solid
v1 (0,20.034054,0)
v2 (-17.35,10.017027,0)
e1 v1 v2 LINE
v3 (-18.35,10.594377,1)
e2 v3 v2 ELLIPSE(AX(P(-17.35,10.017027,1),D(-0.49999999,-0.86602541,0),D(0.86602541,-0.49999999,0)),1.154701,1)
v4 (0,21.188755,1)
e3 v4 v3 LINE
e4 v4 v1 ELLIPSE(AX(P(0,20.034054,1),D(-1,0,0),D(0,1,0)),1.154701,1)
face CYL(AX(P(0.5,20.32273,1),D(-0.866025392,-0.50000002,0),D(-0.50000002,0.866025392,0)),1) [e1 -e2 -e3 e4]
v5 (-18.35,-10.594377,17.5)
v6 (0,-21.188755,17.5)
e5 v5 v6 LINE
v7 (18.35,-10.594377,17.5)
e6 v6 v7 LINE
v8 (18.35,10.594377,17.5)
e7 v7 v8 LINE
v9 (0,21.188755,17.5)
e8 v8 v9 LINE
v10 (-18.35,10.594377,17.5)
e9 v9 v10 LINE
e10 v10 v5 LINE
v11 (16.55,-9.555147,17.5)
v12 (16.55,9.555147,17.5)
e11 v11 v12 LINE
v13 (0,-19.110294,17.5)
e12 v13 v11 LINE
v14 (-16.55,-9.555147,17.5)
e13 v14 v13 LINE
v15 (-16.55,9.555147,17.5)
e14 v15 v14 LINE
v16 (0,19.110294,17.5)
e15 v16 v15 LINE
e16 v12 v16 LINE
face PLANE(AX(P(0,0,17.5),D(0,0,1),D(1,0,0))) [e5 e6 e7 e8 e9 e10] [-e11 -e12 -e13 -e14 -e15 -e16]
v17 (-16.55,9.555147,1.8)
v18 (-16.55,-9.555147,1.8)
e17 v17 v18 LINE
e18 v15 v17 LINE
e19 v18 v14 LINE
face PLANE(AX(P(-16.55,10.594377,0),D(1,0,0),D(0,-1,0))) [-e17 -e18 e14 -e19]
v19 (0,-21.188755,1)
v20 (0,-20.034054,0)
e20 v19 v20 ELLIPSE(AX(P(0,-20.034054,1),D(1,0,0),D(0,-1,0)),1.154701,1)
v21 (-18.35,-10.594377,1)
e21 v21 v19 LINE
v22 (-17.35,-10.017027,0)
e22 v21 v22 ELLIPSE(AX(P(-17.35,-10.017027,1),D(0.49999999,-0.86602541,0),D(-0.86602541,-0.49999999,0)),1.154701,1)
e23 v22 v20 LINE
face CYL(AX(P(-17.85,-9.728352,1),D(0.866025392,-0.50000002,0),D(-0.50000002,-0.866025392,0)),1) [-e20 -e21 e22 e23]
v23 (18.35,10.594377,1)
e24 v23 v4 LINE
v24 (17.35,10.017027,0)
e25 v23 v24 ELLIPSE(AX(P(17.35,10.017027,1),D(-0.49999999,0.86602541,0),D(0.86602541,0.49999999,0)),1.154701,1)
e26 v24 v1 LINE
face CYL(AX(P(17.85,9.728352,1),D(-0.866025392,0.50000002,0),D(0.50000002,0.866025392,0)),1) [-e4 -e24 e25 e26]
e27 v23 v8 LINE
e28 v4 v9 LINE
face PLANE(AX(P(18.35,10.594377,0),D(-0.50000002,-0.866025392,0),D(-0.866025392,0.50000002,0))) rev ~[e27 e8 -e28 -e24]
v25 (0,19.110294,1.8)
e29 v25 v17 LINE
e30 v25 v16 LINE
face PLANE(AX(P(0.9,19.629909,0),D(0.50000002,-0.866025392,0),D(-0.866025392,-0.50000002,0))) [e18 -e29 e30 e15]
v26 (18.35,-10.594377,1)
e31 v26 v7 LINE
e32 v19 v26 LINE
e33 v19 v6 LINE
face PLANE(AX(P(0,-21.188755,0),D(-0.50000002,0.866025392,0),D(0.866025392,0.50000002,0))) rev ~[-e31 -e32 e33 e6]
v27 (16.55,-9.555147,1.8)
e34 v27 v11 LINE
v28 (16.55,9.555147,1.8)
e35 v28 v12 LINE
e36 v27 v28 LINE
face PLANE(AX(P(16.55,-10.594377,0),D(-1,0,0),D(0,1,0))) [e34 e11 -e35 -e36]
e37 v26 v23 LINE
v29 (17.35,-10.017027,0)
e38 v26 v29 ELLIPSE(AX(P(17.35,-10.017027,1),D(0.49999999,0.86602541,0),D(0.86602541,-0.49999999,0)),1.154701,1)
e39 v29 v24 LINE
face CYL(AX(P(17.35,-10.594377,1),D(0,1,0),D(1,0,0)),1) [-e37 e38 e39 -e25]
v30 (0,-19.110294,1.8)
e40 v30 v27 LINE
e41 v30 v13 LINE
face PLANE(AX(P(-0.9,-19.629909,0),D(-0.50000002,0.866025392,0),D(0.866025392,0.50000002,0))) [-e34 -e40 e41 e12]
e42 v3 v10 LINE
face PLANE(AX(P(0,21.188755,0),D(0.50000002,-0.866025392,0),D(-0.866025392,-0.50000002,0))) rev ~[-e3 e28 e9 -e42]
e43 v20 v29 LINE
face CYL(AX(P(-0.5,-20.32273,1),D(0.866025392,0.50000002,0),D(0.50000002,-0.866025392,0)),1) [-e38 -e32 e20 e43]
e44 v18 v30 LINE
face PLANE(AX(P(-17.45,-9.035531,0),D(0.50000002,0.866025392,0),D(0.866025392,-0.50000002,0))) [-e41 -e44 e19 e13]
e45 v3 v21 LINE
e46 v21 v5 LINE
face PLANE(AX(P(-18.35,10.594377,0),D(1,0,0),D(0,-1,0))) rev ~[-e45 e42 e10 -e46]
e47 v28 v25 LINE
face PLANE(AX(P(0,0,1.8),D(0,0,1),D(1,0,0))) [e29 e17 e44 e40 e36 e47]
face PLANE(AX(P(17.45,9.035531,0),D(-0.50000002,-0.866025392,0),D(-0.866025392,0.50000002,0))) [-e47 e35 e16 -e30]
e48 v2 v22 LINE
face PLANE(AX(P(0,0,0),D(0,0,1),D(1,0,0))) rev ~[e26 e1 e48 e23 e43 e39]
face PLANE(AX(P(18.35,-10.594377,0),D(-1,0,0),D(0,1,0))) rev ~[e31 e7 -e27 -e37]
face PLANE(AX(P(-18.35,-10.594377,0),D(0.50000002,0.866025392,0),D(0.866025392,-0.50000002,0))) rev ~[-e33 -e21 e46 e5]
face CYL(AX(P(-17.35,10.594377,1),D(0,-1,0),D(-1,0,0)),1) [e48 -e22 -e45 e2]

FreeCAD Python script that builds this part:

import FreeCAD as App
import Part
import Sketcher
from FreeCAD import Vector
Q = App.Units.Quantity


def edges_at(feature, points):
    """Names of the edges that pass closest to the given points."""
    edges = feature.Shape.Edges
    near = lambda p: min(range(len(edges)), key=lambda i: edges[i].distToShape(Part.Vertex(*p))[0])
    return sorted({f"Edge{near(p) + 1}" for p in points})


def faces_at(feature, points):
    """Names of the faces that lie closest to the given points."""
    faces = feature.Shape.Faces
    near = lambda p: min(range(len(faces)), key=lambda i: faces[i].distToShape(Part.Vertex(*p))[0])
    return sorted({f"Face{near(p) + 1}" for p in points})

doc = App.newDocument("Part")
params = doc.addObject("Spreadsheet::Sheet", "Params")
for row, (alias, value) in enumerate([
    ("pad1_length", "17.5 mm"),
    ("thickness_wall", "1.8 mm"),
    ("fillet_radius", "1 mm"),
], start=1):
    params.set(f"A{row}", alias)
    params.set(f"B{row}", "=" + value)
    params.setAlias(f"B{row}", alias)

body = doc.addObject("PartDesign::Body", "Body")

# Sketch on XY plane
sketch1 = body.newObject("Sketcher::SketchObject", "Sketch")
sketch1.AttachmentSupport = (doc.getObject("XY_Plane"), [""])
sketch1.MapMode = "FlatFace"
sketch1.addGeometry([
    Part.LineSegment(Vector(-18.35, 10.594377, 0), Vector(-18.35, -10.594377, 0)),  # 0
    Part.LineSegment(Vector(-18.35, -10.594377, 0), Vector(0, -21.188755, 0)),  # 1
    Part.LineSegment(Vector(0, -21.188755, 0), Vector(18.35, -10.594377, 0)),  # 2
    Part.LineSegment(Vector(18.35, -10.594377, 0), Vector(18.35, 10.594377, 0)),  # 3
    Part.LineSegment(Vector(18.35, 10.594377, 0), Vector(0, 21.188755, 0)),  # 4
    Part.LineSegment(Vector(0, 21.188755, 0), Vector(-18.35, 10.594377, 0)),  # 5
], False)
sketch1.addConstraint([
    Sketcher.Constraint("Coincident", 0, 2, 1, 1),
    Sketcher.Constraint("Coincident", 1, 2, 2, 1),
    Sketcher.Constraint("Coincident", 2, 2, 3, 1),
    Sketcher.Constraint("Coincident", 3, 2, 4, 1),
    Sketcher.Constraint("Coincident", 4, 2, 5, 1),
    Sketcher.Constraint("Coincident", 5, 2, 0, 1),
    Sketcher.Constraint("Vertical", 0),
    Sketcher.Constraint("Vertical", 3),
    Sketcher.Constraint("Symmetric", 0, 2, 3, 2, -1, 1),
    Sketcher.Constraint("Symmetric", 1, 2, 4, 2, -1, 1),
    Sketcher.Constraint("PointOnObject", 1, 2, -2),
    Sketcher.Constraint("Parallel", 2, 5),
    Sketcher.Constraint("Horizontal", 0, 2, 2, 2),
    Sketcher.Constraint("Angle", 1, Q("-30.000001 deg")),
    Sketcher.Constraint("DistanceX", 0, 2, 2, 2, 36.7),
    Sketcher.Constraint("DistanceY", 0, 2, 0, 1, 21.188754),
])
pad1 = body.newObject("PartDesign::Pad", "Pad")
pad1.Profile = sketch1
pad1.setExpression("Length", "Params.pad1_length")
doc.recompute()

thickness = body.newObject("PartDesign::Thickness", "Thickness")
thickness.Base = (pad1, faces_at(pad1, [(0, 0, 17.5)]))
thickness.setExpression("Value", "Params.thickness_wall")
thickness.Reversed = True
thickness.Join = "Arc"
doc.recompute()

fillet = body.newObject("PartDesign::Fillet", "Fillet")
fillet.Base = (thickness, edges_at(thickness, [
    (-18.35, 0, 0),
    (-9.175, -15.892, 0),
    (9.175, -15.892, 0),
    (18.35, 0, 0),
    (9.175, 15.892, 0),
    (-9.175, 15.892, 0),
]))
fillet.setExpression("Radius", "Params.fillet_radius")

doc.recompute()
